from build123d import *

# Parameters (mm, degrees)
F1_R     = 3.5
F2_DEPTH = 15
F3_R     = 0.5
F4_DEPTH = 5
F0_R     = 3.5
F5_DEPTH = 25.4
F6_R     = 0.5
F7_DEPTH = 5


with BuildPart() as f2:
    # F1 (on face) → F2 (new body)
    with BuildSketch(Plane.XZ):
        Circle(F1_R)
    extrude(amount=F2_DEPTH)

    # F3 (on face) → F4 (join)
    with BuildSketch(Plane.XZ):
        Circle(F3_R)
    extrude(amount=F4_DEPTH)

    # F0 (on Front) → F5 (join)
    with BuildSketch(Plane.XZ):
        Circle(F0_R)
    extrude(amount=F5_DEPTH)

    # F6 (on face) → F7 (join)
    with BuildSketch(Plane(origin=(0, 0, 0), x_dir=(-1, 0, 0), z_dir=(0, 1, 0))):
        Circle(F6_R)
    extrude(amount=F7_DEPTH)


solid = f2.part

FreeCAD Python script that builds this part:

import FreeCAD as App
import Part
import Sketcher
Q = App.Units.Quantity

doc = App.newDocument("Part")
body = doc.addObject("PartDesign::Body", "Body")

# Sketch on XZ plane
sketch1 = body.newObject("Sketcher::SketchObject", "Sketch")
sketch1.AttachmentSupport = (doc.getObject("XZ_Plane"), [""])
sketch1.MapMode = "FlatFace"
sketch1.addGeometry(Part.Circle(App.Vector(0, 0, 0), App.Vector(0, 0, 1), 3.5), False)
sketch1.addConstraint([
    Sketcher.Constraint("Coincident", 0, 3, -1, 1),
    Sketcher.Constraint("Diameter", 0, Q("7 mm")),
])
pad1 = body.newObject("PartDesign::Pad", "Pad")
pad1.Profile = sketch1
pad1.Length = 15

# Sketch on XZ plane
sketch2 = body.newObject("Sketcher::SketchObject", "Sketch001")
sketch2.AttachmentSupport = (doc.getObject("XZ_Plane"), [""])
sketch2.MapMode = "FlatFace"
sketch2.addGeometry(Part.Circle(App.Vector(0, 0, 0), App.Vector(0, 0, 1), 0.5), False)
sketch2.addConstraint([
    Sketcher.Constraint("Coincident", 0, 3, -1, 1),
    Sketcher.Constraint("Diameter", 0, Q("1 mm")),
])
pad2 = body.newObject("PartDesign::Pad", "Pad001")
pad2.Profile = sketch2
pad2.Length = 5

# Sketch on XZ plane
sketch3 = body.newObject("Sketcher::SketchObject", "Sketch002")
sketch3.AttachmentSupport = (doc.getObject("XZ_Plane"), [""])
sketch3.MapMode = "FlatFace"
sketch3.addGeometry(Part.Circle(App.Vector(0, 0, 0), App.Vector(0, 0, 1), 3.5), False)
sketch3.addConstraint([
    Sketcher.Constraint("Coincident", 0, 3, -1, 1),
    Sketcher.Constraint("Diameter", 0, Q("7 mm")),
])
pad3 = body.newObject("PartDesign::Pad", "Pad002")
pad3.Profile = sketch3
pad3.Length = 25.4

# Sketch on XZ plane
sketch4 = body.newObject("Sketcher::SketchObject", "Sketch003")
sketch4.AttachmentSupport = (doc.getObject("XZ_Plane"), [""])
sketch4.MapMode = "FlatFace"
sketch4.addGeometry(Part.Circle(App.Vector(0, 0, 0), App.Vector(0, 0, 1), 0.5), False)
sketch4.addConstraint([
    Sketcher.Constraint("Coincident", 0, 3, -1, 1),
    Sketcher.Constraint("Diameter", 0, Q("1 mm")),
])
pad4 = body.newObject("PartDesign::Pad", "Pad003")
pad4.Profile = sketch4
pad4.Length = 5
pad4.Reversed = True

doc.recompute()
